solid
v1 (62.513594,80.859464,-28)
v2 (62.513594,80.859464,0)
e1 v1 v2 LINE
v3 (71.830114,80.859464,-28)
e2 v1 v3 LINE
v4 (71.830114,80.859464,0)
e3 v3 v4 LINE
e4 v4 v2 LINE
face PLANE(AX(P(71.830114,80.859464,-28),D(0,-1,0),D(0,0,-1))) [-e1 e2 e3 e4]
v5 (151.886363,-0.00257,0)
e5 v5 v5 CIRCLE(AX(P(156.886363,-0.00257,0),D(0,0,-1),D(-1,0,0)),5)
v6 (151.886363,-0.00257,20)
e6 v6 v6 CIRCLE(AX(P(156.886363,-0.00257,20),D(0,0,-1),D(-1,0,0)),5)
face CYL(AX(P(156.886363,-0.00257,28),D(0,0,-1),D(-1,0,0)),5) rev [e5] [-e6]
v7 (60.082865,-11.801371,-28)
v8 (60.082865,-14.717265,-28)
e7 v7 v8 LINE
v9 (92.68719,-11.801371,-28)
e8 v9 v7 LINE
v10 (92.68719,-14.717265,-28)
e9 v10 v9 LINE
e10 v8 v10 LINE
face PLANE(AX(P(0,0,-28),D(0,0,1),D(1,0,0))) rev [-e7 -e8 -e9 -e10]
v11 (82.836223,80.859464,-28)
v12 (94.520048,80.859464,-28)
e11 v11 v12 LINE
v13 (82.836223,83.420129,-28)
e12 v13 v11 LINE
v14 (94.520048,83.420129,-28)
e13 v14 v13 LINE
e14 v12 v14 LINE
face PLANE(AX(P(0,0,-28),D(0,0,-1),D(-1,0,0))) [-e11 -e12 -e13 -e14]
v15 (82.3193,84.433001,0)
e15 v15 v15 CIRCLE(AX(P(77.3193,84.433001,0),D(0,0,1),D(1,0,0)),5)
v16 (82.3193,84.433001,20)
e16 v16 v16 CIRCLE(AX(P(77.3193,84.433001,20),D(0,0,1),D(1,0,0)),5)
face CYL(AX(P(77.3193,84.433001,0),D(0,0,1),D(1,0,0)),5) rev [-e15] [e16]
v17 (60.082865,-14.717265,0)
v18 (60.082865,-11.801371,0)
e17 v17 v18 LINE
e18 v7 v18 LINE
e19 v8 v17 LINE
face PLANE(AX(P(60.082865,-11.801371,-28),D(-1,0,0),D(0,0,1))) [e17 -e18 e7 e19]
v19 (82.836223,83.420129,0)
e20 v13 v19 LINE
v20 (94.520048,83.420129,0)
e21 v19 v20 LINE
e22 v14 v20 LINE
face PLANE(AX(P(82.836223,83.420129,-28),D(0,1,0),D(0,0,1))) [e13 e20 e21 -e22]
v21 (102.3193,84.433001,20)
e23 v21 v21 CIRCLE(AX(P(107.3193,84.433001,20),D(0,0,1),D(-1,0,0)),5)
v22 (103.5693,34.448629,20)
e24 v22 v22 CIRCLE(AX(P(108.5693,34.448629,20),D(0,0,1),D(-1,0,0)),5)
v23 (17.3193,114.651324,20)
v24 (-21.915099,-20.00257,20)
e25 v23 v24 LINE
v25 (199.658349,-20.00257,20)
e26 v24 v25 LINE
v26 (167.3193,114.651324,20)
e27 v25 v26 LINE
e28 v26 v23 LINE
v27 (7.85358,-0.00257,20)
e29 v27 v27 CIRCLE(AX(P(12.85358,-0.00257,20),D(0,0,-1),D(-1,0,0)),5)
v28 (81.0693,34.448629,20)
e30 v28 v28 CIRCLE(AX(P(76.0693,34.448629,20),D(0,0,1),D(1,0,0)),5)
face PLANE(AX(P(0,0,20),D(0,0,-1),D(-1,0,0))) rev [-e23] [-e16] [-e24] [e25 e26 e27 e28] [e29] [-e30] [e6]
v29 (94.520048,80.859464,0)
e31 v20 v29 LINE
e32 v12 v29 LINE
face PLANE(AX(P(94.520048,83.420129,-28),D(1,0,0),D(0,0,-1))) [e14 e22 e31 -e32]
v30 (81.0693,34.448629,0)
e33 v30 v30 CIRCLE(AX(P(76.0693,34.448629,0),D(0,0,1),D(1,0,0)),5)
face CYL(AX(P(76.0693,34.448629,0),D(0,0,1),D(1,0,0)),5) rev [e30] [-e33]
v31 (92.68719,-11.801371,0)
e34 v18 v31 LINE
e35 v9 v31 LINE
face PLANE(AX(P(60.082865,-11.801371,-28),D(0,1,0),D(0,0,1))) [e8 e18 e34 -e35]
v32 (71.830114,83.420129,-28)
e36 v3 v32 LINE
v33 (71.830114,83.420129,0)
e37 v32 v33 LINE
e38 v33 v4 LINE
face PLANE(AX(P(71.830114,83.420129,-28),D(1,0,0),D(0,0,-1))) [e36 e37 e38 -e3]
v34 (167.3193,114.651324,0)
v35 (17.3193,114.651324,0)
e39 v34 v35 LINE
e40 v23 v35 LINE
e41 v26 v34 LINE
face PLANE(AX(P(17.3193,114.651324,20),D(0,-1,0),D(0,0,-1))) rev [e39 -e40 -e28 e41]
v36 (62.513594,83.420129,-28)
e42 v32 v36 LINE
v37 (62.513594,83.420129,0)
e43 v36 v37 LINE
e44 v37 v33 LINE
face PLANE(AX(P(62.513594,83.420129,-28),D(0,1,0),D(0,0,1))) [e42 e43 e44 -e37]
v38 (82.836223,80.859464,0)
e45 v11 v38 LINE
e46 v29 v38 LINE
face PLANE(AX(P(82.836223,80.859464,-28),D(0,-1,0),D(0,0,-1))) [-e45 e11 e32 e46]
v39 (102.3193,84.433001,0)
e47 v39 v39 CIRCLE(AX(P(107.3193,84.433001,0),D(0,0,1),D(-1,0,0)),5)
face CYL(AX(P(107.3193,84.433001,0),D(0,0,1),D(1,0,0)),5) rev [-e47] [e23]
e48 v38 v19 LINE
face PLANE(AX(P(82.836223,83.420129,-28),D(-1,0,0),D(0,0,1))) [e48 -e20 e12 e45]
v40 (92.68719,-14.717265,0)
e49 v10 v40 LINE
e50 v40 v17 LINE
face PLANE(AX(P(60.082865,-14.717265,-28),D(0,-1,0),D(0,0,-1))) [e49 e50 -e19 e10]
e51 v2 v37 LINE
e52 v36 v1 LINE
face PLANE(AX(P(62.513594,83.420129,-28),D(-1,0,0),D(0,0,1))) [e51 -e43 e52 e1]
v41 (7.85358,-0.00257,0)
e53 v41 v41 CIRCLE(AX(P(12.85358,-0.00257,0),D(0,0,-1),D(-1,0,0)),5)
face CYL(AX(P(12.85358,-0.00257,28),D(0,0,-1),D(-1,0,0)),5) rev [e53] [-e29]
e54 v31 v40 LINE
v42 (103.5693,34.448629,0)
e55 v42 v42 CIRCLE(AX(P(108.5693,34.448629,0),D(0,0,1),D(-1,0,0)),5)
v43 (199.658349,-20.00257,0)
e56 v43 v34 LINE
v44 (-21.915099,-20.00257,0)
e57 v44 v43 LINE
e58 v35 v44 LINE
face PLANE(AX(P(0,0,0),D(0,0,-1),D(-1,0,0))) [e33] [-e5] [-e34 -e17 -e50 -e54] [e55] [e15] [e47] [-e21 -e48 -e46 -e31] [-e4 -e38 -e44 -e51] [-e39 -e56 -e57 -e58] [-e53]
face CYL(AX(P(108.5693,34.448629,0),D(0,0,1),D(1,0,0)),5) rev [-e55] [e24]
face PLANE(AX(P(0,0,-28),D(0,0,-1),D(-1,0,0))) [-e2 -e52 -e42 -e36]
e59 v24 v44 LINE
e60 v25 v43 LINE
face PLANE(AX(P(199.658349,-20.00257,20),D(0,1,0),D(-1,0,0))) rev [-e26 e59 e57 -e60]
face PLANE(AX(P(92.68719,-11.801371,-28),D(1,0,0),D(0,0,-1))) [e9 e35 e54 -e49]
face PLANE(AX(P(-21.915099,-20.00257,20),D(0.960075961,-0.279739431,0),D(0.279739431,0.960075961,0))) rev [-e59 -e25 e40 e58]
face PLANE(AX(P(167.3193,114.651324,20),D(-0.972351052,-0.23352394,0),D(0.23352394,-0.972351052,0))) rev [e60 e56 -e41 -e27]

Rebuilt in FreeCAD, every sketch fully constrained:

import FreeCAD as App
import Part
import Sketcher

V = App.Vector
Q = App.Units.Quantity


def add_polygon(sketch, points):
    """Adds a closed chain of lines whose ends are joined by coincident constraints."""
    first, n = sketch.GeometryCount, len(points)
    for a, b in zip(points, points[1:] + points[:1]):
        sketch.addGeometry(Part.LineSegment(App.Vector(*a, 0), App.Vector(*b, 0)), False)
    for i in range(n):
        sketch.addConstraint(Sketcher.Constraint("Coincident", first + i, 2, first + (i + 1) % n, 1))

doc = App.newDocument("Part")
body = doc.addObject("PartDesign::Body", "Body")

sketch1 = body.newObject("Sketcher::SketchObject", "Sketch")
sketch1.AttachmentSupport = (doc.getObject("XY_Plane"), [""])
sketch1.MapMode = "FlatFace"
add_polygon(sketch1, [(167, 115), (17, 115), (-22, -20), (200, -20)])
sketch1.addConstraint([
    Sketcher.Constraint("Horizontal", 0),
    Sketcher.Constraint("Horizontal", 2),
    Sketcher.Constraint("DistanceX", 0, 2, 0, 1, Q("150 mm")),
    Sketcher.Constraint("DistanceX", 2, 1, 2, 2, Q("221.573448 mm")),
    Sketcher.Constraint("DistanceX", -1, 1, 0, 2, Q("17.3193 mm")),
    Sketcher.Constraint("DistanceX", 1, 2, -1, 1, Q("21.915099 mm")),
    Sketcher.Constraint("DistanceY", 1, 2, -1, 1, Q("20.00257 mm")),
    Sketcher.Constraint("Distance", 1, Q("140.253375 mm")),
])
pad1 = body.newObject("PartDesign::Pad", "Pad")
pad1.Profile = sketch1
pad1.Length = 20

sketch2 = body.newObject("Sketcher::SketchObject", "Sketch001")
sketch2.AttachmentSupport = (doc.getObject("XY_Plane"), [""])
sketch2.MapMode = "FlatFace"
sketch2.AttachmentOffset = App.Placement(V(0, 0, 20), App.Rotation())
sketch2.addGeometry([
    Part.Circle(V(77, 84, 0), V(0, 0, 1), 5),
    Part.Circle(V(76, 34, 0), V(0, 0, 1), 5),
    Part.Circle(V(109, 34, 0), V(0, 0, 1), 5),
    Part.Circle(V(107, 84, 0), V(0, 0, 1), 5),
], False)
sketch2.addConstraint([
    Sketcher.Constraint("Equal", 0, 1),
    Sketcher.Constraint("Equal", 1, 2),
    Sketcher.Constraint("Equal", 2, 3),
    Sketcher.Constraint("Horizontal", 1, 3, 2, 3),
    Sketcher.Constraint("Horizontal", 0, 3, 3, 3),
    Sketcher.Constraint("Diameter", 0, Q("10 mm")),
    Sketcher.Constraint("DistanceX", 0, 3, 3, 3, Q("30 mm")),
    Sketcher.Constraint("DistanceX", 1, 3, 2, 3, Q("32.5 mm")),
    Sketcher.Constraint("DistanceX", 1, 3, 0, 3, Q("1.25 mm")),
    Sketcher.Constraint("DistanceY", -1, 1, 0, 3, Q("84.433001 mm")),
    Sketcher.Constraint("DistanceX", -1, 1, 0, 3, Q("77.3193 mm")),
    Sketcher.Constraint("DistanceY", -1, 1, 1, 3, Q("34.448629 mm")),
])
pocket1 = body.newObject("PartDesign::Pocket", "Pocket")
pocket1.Profile = sketch2
pocket1.Type = "ThroughAll"

sketch3 = body.newObject("Sketcher::SketchObject", "Sketch002")
sketch3.AttachmentSupport = (doc.getObject("XY_Plane"), [""])
sketch3.MapMode = "FlatFace"
sketch3.AttachmentOffset = App.Placement(V(0, 0, 20), App.Rotation())
add_polygon(sketch3, [(60.1, -11.8), (60.1, -14.7), (92.7, -14.7), (92.7, -11.8)])
add_polygon(sketch3, [(62.5, 83.4), (62.5, 80.9), (71.8, 80.9), (71.8, 83.4)])
add_polygon(sketch3, [(82.8, 83.4), (82.8, 80.9), (94.5, 80.9), (94.5, 83.4)])
sketch3.addConstraint([
    Sketcher.Constraint("Vertical", 0),
    Sketcher.Constraint("Horizontal", 1),
    Sketcher.Constraint("Vertical", 2),
    Sketcher.Constraint("Horizontal", 3),
    Sketcher.Constraint("Vertical", 4),
    Sketcher.Constraint("Horizontal", 5),
    Sketcher.Constraint("Vertical", 6),
    Sketcher.Constraint("Horizontal", 7),
    Sketcher.Constraint("Vertical", 8),
    Sketcher.Constraint("Horizontal", 9),
    Sketcher.Constraint("Vertical", 10),
    Sketcher.Constraint("Horizontal", 11),
    Sketcher.Constraint("Horizontal", 5, 2, 8, 2),
    Sketcher.Constraint("Horizontal", 7, 2, 10, 2),
    Sketcher.Constraint("DistanceX", 5, 1, 5, 2, Q("9.31652 mm")),
    Sketcher.Constraint("DistanceY", 3, 2, 6, 2, Q("95.221501 mm")),
    Sketcher.Constraint("DistanceX", 1, 1, 1, 2, Q("32.604324 mm")),
    Sketcher.Constraint("DistanceX", 9, 1, 9, 2, Q("11.683825 mm")),
    Sketcher.Constraint("DistanceY", 0, 2, 0, 1, Q("2.915894 mm")),
    Sketcher.Constraint("DistanceY", 4, 2, 4, 1, Q("2.560665 mm")),
    Sketcher.Constraint("DistanceX", -1, 1, 1, 2, Q("92.68719 mm")),
    Sketcher.Constraint("DistanceY", 2, 2, -1, 1, Q("11.801371 mm")),
    Sketcher.Constraint("DistanceX", -1, 1, 9, 2, Q("94.520048 mm")),
    Sketcher.Constraint("DistanceX", 3, 2, 4, 2, Q("2.430729 mm")),
])
pad2 = body.newObject("PartDesign::Pad", "Pad001")
pad2.Profile = sketch3
pad2.Length = 48
pad2.Reversed = True

sketch4 = body.newObject("Sketcher::SketchObject", "Sketch003")
sketch4.AttachmentSupport = (doc.getObject("XY_Plane"), [""])
sketch4.MapMode = "FlatFace"
sketch4.addGeometry([
    Part.Circle(V(157, 0, 0), V(0, 0, 1), 5),
    Part.Circle(V(13, 0, 0), V(0, 0, 1), 5),
], False)
sketch4.addConstraint([
    Sketcher.Constraint("Equal", 0, 1),
    Sketcher.Constraint("Horizontal", 0, 3, 1, 3),
    Sketcher.Constraint("Diameter", 0, Q("10 mm")),
    Sketcher.Constraint("DistanceY", 0, 3, -1, 1, Q("0.00257 mm")),
    Sketcher.Constraint("DistanceX", -1, 1, 1, 3, Q("12.85358 mm")),
    Sketcher.Constraint("DistanceX", -1, 1, 0, 3, Q("156.886363 mm")),
])
pocket2 = body.newObject("PartDesign::Pocket", "Pocket001")
pocket2.Profile = sketch4
pocket2.Length = 28
pocket2.Reversed = True

doc.recompute()
